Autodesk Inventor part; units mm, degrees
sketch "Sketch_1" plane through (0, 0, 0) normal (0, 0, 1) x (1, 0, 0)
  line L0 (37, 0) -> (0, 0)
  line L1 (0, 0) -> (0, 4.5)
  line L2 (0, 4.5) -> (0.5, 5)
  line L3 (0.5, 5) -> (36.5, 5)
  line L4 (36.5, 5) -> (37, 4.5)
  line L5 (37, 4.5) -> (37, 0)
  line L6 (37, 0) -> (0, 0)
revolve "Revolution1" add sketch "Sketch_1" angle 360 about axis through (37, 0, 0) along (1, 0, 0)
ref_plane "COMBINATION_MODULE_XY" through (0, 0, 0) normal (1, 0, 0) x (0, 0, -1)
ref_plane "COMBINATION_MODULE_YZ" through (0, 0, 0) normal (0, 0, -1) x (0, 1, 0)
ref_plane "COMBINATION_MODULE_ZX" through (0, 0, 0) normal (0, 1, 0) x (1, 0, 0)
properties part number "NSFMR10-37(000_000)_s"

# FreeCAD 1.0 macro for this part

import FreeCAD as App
import Part
import Sketcher


def add_polygon(sketch, points):
    """Adds a closed chain of lines whose ends are joined by coincident constraints."""
    first, n = sketch.GeometryCount, len(points)
    for a, b in zip(points, points[1:] + points[:1]):
        sketch.addGeometry(Part.LineSegment(App.Vector(*a, 0), App.Vector(*b, 0)), False)
    for i in range(n):
        sketch.addConstraint(Sketcher.Constraint("Coincident", first + i, 2, first + (i + 1) % n, 1))

doc = App.newDocument("Part")
body = doc.addObject("PartDesign::Body", "Body")

# Sketch on XY plane
sketch1 = body.newObject("Sketcher::SketchObject", "Sketch")
sketch1.AttachmentSupport = (doc.getObject("XY_Plane"), [""])
sketch1.MapMode = "FlatFace"
add_polygon(sketch1, [(0, 0), (37, 0), (37, 4.5), (36.5, 5), (0.5, 5), (0, 4.5)])  # lines 0-5
sketch1.addConstraint([
    Sketcher.Constraint("Horizontal", 0),
    Sketcher.Constraint("Vertical", 1),
    Sketcher.Constraint("Horizontal", 3),
    Sketcher.Constraint("Vertical", 5),
    Sketcher.Constraint("Coincident", 5, 2, -1, 1),
    Sketcher.Constraint("Perpendicular", 2, 4),
    Sketcher.Constraint("Horizontal", 1, 2, 4, 2),
    Sketcher.Constraint("Equal", 2, 4),
    Sketcher.Constraint("DistanceX", 0, 1, 0, 2, 37.0),
    Sketcher.Constraint("DistanceX", 3, 2, 3, 1, 36.0),
    Sketcher.Constraint("DistanceY", 1, 1, 1, 2, 4.5),
])
revolution = body.newObject("PartDesign::Revolution", "Revolution")
revolution.Profile = sketch1
revolution.ReferenceAxis = (sketch1, ["H_Axis"])
revolution.Angle = 360

doc.recompute()
